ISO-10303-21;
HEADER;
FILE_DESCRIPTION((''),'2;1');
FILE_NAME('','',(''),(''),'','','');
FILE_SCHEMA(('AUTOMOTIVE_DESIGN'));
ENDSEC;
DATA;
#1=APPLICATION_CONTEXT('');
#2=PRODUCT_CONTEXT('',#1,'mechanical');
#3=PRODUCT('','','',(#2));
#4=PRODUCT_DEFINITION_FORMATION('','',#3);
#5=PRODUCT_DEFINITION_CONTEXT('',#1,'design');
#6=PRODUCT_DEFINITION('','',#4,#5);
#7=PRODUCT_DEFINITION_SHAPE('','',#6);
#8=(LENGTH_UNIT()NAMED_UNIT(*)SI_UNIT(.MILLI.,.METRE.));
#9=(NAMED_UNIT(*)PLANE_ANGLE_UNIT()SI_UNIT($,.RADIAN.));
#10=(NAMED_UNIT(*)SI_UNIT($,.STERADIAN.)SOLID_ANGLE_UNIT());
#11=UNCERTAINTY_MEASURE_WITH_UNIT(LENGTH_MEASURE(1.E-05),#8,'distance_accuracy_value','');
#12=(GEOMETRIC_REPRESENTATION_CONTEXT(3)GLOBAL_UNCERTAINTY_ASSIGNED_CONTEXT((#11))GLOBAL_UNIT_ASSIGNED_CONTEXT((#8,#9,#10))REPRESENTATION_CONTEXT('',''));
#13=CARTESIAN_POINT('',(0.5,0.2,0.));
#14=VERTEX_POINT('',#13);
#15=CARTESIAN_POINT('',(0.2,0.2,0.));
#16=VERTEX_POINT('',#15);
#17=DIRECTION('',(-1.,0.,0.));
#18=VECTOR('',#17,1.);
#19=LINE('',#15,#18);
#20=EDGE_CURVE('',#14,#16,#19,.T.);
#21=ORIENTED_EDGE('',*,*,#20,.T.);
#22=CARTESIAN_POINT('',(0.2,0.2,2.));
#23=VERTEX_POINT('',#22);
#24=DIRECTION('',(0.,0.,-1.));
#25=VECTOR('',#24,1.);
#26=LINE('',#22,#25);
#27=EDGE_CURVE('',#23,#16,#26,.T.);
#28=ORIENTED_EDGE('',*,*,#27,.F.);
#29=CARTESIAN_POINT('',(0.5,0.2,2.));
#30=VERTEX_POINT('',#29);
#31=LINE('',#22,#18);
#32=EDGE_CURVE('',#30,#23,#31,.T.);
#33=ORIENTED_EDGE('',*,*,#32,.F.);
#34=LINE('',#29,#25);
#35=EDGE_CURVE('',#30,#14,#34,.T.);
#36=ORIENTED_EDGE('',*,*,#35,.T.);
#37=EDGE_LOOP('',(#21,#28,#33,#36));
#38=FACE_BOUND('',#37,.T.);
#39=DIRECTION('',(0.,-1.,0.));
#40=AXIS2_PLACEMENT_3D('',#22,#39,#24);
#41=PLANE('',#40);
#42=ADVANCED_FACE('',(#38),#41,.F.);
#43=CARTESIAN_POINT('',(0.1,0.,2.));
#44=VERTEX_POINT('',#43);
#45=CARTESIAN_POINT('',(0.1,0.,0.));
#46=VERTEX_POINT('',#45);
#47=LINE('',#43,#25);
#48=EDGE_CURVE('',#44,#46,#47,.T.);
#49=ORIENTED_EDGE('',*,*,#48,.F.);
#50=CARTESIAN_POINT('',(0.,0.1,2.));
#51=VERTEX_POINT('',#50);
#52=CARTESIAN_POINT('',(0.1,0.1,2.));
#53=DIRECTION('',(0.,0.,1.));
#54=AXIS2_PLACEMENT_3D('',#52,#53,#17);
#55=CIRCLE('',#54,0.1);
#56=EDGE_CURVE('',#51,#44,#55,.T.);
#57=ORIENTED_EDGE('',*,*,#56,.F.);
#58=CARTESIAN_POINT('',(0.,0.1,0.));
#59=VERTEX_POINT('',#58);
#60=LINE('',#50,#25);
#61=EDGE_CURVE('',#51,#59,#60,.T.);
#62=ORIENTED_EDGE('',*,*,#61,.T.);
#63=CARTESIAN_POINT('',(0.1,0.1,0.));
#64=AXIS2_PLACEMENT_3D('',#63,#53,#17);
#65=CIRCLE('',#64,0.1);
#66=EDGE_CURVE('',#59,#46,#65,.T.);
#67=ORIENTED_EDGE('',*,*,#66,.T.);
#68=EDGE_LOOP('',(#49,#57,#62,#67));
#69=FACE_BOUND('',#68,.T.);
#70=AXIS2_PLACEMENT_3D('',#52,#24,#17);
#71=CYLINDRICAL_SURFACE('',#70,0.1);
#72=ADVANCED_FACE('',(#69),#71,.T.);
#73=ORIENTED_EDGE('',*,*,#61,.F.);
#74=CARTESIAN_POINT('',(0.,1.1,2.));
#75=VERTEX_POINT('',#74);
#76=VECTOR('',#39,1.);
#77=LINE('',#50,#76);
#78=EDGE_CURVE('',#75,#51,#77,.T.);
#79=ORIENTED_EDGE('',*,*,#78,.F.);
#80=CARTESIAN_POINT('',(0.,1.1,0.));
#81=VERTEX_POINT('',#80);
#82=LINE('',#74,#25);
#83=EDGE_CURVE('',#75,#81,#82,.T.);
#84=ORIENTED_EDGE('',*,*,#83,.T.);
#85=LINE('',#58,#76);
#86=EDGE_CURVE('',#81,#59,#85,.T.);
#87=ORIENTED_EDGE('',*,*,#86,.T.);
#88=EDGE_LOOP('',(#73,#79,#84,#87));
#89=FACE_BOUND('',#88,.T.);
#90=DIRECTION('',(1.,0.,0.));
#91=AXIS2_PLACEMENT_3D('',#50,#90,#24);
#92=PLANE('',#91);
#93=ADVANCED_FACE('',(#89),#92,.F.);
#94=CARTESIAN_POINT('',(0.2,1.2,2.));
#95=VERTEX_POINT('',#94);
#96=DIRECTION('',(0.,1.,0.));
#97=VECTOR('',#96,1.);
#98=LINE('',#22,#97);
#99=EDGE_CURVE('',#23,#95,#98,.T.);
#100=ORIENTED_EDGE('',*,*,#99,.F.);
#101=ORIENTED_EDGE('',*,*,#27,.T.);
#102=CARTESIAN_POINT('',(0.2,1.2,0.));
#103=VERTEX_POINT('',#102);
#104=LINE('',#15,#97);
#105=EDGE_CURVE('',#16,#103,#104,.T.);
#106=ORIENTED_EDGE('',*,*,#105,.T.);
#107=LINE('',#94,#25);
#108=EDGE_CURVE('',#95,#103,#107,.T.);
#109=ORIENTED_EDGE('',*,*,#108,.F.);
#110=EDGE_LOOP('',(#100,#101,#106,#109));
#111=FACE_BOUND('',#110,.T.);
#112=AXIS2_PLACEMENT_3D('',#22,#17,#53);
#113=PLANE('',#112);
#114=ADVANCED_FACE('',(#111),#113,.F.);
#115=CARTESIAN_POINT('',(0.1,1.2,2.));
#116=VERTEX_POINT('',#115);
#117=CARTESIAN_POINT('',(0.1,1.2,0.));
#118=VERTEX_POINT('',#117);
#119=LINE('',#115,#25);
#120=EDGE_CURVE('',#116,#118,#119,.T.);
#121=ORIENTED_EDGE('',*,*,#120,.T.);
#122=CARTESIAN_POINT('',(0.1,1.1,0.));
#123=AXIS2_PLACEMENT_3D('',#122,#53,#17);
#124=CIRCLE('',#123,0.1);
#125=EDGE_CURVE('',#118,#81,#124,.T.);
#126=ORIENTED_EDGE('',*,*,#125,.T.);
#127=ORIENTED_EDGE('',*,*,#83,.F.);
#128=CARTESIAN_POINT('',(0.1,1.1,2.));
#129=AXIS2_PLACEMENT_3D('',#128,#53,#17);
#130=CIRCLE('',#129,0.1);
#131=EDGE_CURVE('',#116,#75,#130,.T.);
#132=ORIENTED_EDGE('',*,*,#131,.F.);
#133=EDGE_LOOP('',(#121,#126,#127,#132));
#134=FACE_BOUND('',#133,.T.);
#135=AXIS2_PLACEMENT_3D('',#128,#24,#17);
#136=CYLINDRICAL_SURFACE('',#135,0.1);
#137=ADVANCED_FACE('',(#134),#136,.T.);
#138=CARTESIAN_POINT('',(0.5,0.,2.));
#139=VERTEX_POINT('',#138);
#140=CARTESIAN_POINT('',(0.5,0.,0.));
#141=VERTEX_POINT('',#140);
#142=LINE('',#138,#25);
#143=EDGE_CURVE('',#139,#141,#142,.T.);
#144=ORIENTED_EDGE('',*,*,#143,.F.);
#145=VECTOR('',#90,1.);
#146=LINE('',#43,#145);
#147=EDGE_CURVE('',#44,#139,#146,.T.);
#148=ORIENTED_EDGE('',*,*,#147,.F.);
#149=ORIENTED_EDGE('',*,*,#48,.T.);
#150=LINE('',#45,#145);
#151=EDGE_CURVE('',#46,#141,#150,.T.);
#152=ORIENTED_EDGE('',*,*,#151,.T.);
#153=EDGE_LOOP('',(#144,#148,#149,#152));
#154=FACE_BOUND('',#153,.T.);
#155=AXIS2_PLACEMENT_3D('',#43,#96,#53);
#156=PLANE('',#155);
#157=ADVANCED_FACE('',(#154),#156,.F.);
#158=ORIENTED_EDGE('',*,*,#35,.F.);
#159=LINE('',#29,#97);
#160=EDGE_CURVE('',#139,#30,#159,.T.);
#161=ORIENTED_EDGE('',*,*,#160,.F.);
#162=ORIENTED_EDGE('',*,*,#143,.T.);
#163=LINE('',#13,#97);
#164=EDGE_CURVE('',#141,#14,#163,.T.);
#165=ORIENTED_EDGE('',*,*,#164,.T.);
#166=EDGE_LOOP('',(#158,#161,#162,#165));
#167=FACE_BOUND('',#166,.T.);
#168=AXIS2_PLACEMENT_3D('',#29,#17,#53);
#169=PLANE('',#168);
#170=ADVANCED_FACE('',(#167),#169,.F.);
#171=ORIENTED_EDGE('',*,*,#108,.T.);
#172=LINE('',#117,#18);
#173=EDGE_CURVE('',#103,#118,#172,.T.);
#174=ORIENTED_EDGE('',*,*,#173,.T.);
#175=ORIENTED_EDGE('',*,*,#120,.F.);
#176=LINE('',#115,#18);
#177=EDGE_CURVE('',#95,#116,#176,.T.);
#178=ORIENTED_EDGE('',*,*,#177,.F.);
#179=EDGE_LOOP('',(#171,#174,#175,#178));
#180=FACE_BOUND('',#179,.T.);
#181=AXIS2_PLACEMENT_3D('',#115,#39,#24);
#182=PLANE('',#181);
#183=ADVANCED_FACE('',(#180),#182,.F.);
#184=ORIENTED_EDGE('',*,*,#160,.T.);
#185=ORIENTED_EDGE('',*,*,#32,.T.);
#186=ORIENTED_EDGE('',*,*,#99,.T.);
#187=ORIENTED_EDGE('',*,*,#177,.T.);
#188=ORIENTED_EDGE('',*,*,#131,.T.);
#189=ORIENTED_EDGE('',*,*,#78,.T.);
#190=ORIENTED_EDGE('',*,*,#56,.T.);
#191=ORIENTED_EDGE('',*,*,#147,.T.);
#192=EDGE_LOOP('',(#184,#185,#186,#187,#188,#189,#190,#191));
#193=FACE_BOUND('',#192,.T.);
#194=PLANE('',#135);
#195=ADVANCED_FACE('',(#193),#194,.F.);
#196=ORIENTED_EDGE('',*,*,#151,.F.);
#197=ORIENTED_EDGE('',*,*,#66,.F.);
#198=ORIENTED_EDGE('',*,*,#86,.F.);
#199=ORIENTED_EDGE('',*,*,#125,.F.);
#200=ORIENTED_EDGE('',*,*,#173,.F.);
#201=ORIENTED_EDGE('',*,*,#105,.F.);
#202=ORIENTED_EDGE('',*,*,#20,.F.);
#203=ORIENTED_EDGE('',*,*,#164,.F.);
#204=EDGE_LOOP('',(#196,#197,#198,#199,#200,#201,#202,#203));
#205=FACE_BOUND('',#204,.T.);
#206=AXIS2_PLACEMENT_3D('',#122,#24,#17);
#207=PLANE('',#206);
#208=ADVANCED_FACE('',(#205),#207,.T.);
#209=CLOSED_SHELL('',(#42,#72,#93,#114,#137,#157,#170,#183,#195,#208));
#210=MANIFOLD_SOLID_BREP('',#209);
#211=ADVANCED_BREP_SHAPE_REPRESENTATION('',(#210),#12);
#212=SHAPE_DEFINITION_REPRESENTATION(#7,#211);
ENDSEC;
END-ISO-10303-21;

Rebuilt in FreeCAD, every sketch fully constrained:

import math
import FreeCAD as App
import Part
import Sketcher

doc = App.newDocument("Part")
body = doc.addObject("PartDesign::Body", "Body")

sketch1 = body.newObject("Sketcher::SketchObject", "Sketch")
sketch1.AttachmentSupport = (doc.getObject("XY_Plane"), [""])
sketch1.MapMode = "FlatFace"
sketch1.addGeometry(Part.LineSegment(App.Vector(0, 1.1, 0), App.Vector(0, 0.1, 0)), False)
sketch1.addGeometry(Part.ArcOfCircle(Part.Circle(App.Vector(0.1, 0.1, 0), App.Vector(0, 0, 1), 0.1), math.radians(180), math.radians(270)), False)
sketch1.addGeometry(Part.LineSegment(App.Vector(0.1, 0, 0), App.Vector(0.5, 0, 0)), False)
sketch1.addGeometry(Part.LineSegment(App.Vector(0.5, 0, 0), App.Vector(0.5, 0.2, 0)), False)
sketch1.addGeometry(Part.LineSegment(App.Vector(0.5, 0.2, 0), App.Vector(0.2, 0.2, 0)), False)
sketch1.addGeometry(Part.LineSegment(App.Vector(0.2, 0.2, 0), App.Vector(0.2, 1.2, 0)), False)
sketch1.addGeometry(Part.LineSegment(App.Vector(0.2, 1.2, 0), App.Vector(0.1, 1.2, 0)), False)
sketch1.addGeometry(Part.ArcOfCircle(Part.Circle(App.Vector(0.1, 1.1, 0), App.Vector(0, 0, 1), 0.1), math.radians(90), math.radians(180)), False)
sketch1.addConstraint(Sketcher.Constraint("Tangent", 0, 2, 1, 1))
sketch1.addConstraint(Sketcher.Constraint("Tangent", 1, 2, 2, 1))
sketch1.addConstraint(Sketcher.Constraint("Coincident", 2, 2, 3, 1))
sketch1.addConstraint(Sketcher.Constraint("Coincident", 3, 2, 4, 1))
sketch1.addConstraint(Sketcher.Constraint("Coincident", 4, 2, 5, 1))
sketch1.addConstraint(Sketcher.Constraint("Coincident", 5, 2, 6, 1))
sketch1.addConstraint(Sketcher.Constraint("Tangent", 6, 2, 7, 1))
sketch1.addConstraint(Sketcher.Constraint("Tangent", 7, 2, 0, 1))
sketch1.addConstraint(Sketcher.Constraint("Vertical", 0))
sketch1.addConstraint(Sketcher.Constraint("Horizontal", 2))
sketch1.addConstraint(Sketcher.Constraint("Vertical", 3))
sketch1.addConstraint(Sketcher.Constraint("Horizontal", 4))
sketch1.addConstraint(Sketcher.Constraint("Vertical", 5))
sketch1.addConstraint(Sketcher.Constraint("Horizontal", 6))
sketch1.addConstraint(Sketcher.Constraint("Equal", 1, 7))
sketch1.addConstraint(Sketcher.Constraint("PointOnObject", 0, 2, -2))
sketch1.addConstraint(Sketcher.Constraint("PointOnObject", 1, 2, -1))
sketch1.addConstraint(Sketcher.Constraint("Equal", 0, 5))
sketch1.addConstraint(Sketcher.Constraint("Radius", 1, 0.1))
sketch1.addConstraint(Sketcher.Constraint("DistanceY", 0, 2, 0, 1, 1.0))
sketch1.addConstraint(Sketcher.Constraint("DistanceX", 2, 1, 2, 2, 0.4))
sketch1.addConstraint(Sketcher.Constraint("DistanceX", 4, 2, 4, 1, 0.3))
pad1 = body.newObject("PartDesign::Pad", "Pad")
pad1.Profile = sketch1
pad1.Length = 2

doc.recompute()
